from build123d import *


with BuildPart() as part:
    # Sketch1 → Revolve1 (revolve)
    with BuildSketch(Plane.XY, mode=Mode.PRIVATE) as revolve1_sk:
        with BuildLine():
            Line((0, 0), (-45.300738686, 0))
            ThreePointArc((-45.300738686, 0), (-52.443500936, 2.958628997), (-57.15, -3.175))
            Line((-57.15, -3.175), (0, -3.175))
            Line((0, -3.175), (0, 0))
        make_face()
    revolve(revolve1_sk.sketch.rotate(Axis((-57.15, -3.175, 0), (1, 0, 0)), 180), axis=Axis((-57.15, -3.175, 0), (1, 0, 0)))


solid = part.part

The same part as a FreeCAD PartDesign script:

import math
import FreeCAD as App
import Part
import Sketcher

V = App.Vector
Q = App.Units.Quantity

doc = App.newDocument("Part")
body = doc.addObject("PartDesign::Body", "Body")

# Sketch on XY plane
sketch1 = doc.addObject("Sketcher::SketchObject", "Sketch")
body.addObject(sketch1)
sketch1.AttachmentSupport = (doc.XY_Plane, [""])
sketch1.MapMode = "FlatFace"
sketch1.addGeometry([
    Part.LineSegment(V(0, 0, 0), V(-45.300739, 0, 0)),
    Part.ArcOfCircle(Part.Circle(V(-50.8, -3.175, 0), V(0, 0, 1), 6.35), math.radians(30), math.radians(180)),
    Part.LineSegment(V(-57.15, -3.175, 0), V(0, -3.175, 0)),
    Part.LineSegment(V(0, -3.175, 0), V(0, 0, 0)),
], False)
sketch1.addGeometry(Part.LineSegment(V(-57.15, -3.175, 0), V(0, -3.175, 0)), True)  # axis
sketch1.addConstraint([
    Sketcher.Constraint("Coincident", 0, 2, 1, 1),
    Sketcher.Constraint("Coincident", 1, 2, 2, 1),
    Sketcher.Constraint("Coincident", 2, 2, 3, 1),
    Sketcher.Constraint("Coincident", 3, 2, 0, 1),
    Sketcher.Constraint("Horizontal", 0),
    Sketcher.Constraint("Horizontal", 2),
    Sketcher.Constraint("Vertical", 3),
    Sketcher.Constraint("Horizontal", 4),
    Sketcher.Constraint("Coincident", 3, 2, -1, 1),
    Sketcher.Constraint("Coincident", 4, 1, 1, 2),
    Sketcher.Constraint("PointOnObject", 4, 2, -2),
    Sketcher.Constraint("Radius", 1, Q("0.25 in")),
    Sketcher.Constraint("DistanceX", 1, 3, -1, 1, Q("2 in")),
    Sketcher.Constraint("DistanceY", 3, 1, 3, 2, Q("0.125 in")),
    Sketcher.Constraint("DistanceY", 1, 3, -1, 1, Q("0.125 in")),
])
revolution = doc.addObject("PartDesign::Revolution", "Revolution")
body.addObject(revolution)
revolution.Profile = sketch1
revolution.ReferenceAxis = (sketch1, ["Axis0"])
revolution.Angle = 360

doc.recompute()
